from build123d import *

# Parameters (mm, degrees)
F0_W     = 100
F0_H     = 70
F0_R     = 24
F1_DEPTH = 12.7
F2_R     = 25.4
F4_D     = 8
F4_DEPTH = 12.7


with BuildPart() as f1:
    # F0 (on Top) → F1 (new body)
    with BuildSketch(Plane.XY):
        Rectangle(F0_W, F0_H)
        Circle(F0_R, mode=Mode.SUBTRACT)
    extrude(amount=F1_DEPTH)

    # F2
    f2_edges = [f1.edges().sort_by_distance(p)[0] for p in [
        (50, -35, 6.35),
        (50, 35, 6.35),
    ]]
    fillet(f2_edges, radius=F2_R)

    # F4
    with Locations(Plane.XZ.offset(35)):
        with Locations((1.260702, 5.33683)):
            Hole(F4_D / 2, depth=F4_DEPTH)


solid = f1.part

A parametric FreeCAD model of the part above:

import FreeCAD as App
import Part
import Sketcher
from FreeCAD import Vector


def edges_at(feature, points):
    """Names of the edges that pass closest to the given points."""
    edges = feature.Shape.Edges
    near = lambda p: min(range(len(edges)), key=lambda i: edges[i].distToShape(Part.Vertex(*p))[0])
    return sorted({f"Edge{near(p) + 1}" for p in points})

doc = App.newDocument("Part")
params = doc.addObject("Spreadsheet::Sheet", "Params")
for row, (alias, value) in enumerate([
    ("sketch1_diameter", "48 mm"),
    ("sketch1_width", "100 mm"),
    ("sketch1_height", "70 mm"),
    ("pad1_length", "12.7 mm"),
    ("fillet_radius", "25.4 mm"),
    ("sketch2_diameter", "8 mm"),
    ("hole_diameter", "8 mm"),
    ("hole_depth", "12.7 mm"),
], start=1):
    params.set(f"A{row}", alias)
    params.set(f"B{row}", "=" + value)
    params.setAlias(f"B{row}", alias)

body = doc.addObject("PartDesign::Body", "Body")

# Sketch on XY plane
sketch1 = doc.addObject("Sketcher::SketchObject", "Sketch")
body.addObject(sketch1)
sketch1.AttachmentSupport = (doc.XY_Plane, [""])
sketch1.MapMode = "FlatFace"
sketch1.addGeometry(Part.LineSegment(Vector(-50, 35, 0), Vector(-50, -35, 0)), False)
sketch1.addGeometry(Part.LineSegment(Vector(-50, -35, 0), Vector(50, -35, 0)), False)
sketch1.addGeometry(Part.LineSegment(Vector(50, -35, 0), Vector(50, 35, 0)), False)
sketch1.addGeometry(Part.LineSegment(Vector(50, 35, 0), Vector(-50, 35, 0)), False)
sketch1.addGeometry(Part.Circle(Vector(0, 0, 0), Vector(0, 0, 1), 24), False)
sketch1.addConstraint(Sketcher.Constraint("Coincident", 0, 2, 1, 1))
sketch1.addConstraint(Sketcher.Constraint("Coincident", 1, 2, 2, 1))
sketch1.addConstraint(Sketcher.Constraint("Coincident", 2, 2, 3, 1))
sketch1.addConstraint(Sketcher.Constraint("Coincident", 3, 2, 0, 1))
sketch1.addConstraint(Sketcher.Constraint("Vertical", 0))
sketch1.addConstraint(Sketcher.Constraint("Horizontal", 1))
sketch1.addConstraint(Sketcher.Constraint("Vertical", 2))
sketch1.addConstraint(Sketcher.Constraint("Horizontal", 3))
sketch1.addConstraint(Sketcher.Constraint("Coincident", 4, 3, -1, 1))
sketch1.addConstraint(Sketcher.Constraint("Symmetric", 0, 2, 2, 2, -1, 1))
sketch1.addConstraint(Sketcher.Constraint("Diameter", 4, 48.0))
sketch1.addConstraint(Sketcher.Constraint("DistanceX", 1, 1, 1, 2, 100.0))
sketch1.addConstraint(Sketcher.Constraint("DistanceY", 0, 2, 0, 1, 70.0))
sketch1.setExpression("Constraints[10]", "Params.sketch1_diameter")
sketch1.setExpression("Constraints[11]", "Params.sketch1_width")
sketch1.setExpression("Constraints[12]", "Params.sketch1_height")
pad1 = doc.addObject("PartDesign::Pad", "Pad")
body.addObject(pad1)
pad1.Profile = sketch1
pad1.setExpression("Length", "Params.pad1_length")
doc.recompute()

fillet = doc.addObject("PartDesign::Fillet", "Fillet")
body.addObject(fillet)
fillet.Base = (pad1, edges_at(pad1, [(50, -35, 6.35), (50, 35, 6.35)]))
fillet.setExpression("Radius", "Params.fillet_radius")

# Sketch on XZ plane
sketch2 = doc.addObject("Sketcher::SketchObject", "Sketch001")
body.addObject(sketch2)
sketch2.AttachmentSupport = (doc.XZ_Plane, [""])
sketch2.MapMode = "FlatFace"
sketch2.AttachmentOffset = App.Placement(Vector(0, 0, 35), App.Rotation())
sketch2.addGeometry(Part.Circle(Vector(1.260702, 5.33683, 0), Vector(0, 0, 1), 4), False)
sketch2.addConstraint(Sketcher.Constraint("Diameter", 0, 8.0))
sketch2.addConstraint(Sketcher.Constraint("DistanceY", -1, 1, 0, 3, 5.33683))
sketch2.addConstraint(Sketcher.Constraint("DistanceX", -1, 1, 0, 3, 1.260702))
sketch2.setExpression("Constraints[0]", "Params.sketch2_diameter")
doc.recompute()
hole = doc.addObject("PartDesign::Hole", "Hole")
body.addObject(hole)
hole.Profile = sketch2
hole.ThreadType = "None"
hole.setExpression("Diameter", "Params.hole_diameter")
hole.DepthType = "Dimension"
hole.setExpression("Depth", "Params.hole_depth")
hole.DrillPoint = "Flat"

doc.recompute()
